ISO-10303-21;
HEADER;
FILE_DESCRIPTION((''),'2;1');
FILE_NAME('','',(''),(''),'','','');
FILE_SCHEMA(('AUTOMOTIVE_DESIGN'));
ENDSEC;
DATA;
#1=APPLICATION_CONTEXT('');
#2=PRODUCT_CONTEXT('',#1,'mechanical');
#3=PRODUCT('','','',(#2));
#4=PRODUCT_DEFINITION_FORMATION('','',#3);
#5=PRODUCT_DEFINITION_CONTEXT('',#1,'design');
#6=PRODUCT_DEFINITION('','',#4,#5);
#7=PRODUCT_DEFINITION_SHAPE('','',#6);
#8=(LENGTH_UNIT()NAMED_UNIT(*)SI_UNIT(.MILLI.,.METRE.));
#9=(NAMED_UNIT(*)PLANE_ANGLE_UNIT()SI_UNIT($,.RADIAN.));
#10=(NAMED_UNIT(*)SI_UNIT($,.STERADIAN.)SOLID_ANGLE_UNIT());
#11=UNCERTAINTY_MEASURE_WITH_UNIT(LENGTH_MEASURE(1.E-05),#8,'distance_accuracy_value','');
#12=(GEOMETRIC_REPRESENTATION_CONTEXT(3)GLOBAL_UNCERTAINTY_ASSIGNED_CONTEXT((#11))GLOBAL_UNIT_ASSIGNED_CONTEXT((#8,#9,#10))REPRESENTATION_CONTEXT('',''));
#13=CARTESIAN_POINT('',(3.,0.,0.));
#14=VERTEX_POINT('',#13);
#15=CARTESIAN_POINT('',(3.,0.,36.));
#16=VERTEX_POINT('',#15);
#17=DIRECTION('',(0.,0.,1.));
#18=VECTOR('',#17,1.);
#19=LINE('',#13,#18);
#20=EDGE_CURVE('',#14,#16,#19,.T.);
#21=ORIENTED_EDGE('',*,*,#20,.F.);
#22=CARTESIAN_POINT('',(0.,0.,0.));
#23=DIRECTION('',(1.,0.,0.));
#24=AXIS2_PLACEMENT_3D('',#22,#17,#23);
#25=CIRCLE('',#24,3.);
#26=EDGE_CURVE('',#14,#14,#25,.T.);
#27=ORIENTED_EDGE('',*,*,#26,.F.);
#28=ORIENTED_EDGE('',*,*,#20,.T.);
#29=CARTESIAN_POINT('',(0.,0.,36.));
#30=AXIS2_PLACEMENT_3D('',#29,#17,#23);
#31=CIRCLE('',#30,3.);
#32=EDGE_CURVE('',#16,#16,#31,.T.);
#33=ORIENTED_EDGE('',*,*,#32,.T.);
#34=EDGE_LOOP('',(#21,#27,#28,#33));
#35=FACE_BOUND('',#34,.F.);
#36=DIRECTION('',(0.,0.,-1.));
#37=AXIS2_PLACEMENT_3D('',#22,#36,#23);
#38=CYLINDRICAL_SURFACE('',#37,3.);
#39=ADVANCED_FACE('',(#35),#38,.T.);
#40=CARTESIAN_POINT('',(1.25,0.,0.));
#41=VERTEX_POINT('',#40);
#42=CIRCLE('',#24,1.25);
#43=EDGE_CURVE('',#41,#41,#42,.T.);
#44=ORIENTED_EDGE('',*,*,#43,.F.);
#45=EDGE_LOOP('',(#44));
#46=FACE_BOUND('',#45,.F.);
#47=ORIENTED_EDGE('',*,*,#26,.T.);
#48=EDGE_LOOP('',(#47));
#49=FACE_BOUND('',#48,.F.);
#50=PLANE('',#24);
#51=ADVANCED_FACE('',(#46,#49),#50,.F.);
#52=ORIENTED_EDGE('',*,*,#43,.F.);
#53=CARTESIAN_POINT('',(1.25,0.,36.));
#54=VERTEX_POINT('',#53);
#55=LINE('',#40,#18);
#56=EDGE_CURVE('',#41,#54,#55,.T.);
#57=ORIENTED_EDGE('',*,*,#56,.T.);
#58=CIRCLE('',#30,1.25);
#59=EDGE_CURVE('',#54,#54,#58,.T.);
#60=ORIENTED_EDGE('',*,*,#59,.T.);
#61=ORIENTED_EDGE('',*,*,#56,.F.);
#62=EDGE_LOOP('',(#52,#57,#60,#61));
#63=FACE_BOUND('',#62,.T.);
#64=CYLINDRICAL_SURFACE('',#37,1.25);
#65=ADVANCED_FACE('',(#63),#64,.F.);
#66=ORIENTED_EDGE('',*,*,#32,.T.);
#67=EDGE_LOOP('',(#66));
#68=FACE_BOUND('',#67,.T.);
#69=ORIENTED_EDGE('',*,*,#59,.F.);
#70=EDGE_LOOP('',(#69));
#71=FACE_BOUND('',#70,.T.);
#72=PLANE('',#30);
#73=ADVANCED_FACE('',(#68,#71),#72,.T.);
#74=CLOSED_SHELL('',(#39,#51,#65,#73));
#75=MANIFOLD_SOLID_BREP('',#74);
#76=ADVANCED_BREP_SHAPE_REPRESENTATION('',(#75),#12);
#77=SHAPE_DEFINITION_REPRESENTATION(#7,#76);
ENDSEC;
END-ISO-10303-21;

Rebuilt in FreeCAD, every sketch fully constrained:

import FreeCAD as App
import Part
import Sketcher
Q = App.Units.Quantity

doc = App.newDocument("Part")
body = doc.addObject("PartDesign::Body", "Body")

# Sketch on XY plane
sketch1 = body.newObject("Sketcher::SketchObject", "Sketch")
sketch1.AttachmentSupport = (doc.getObject("XY_Plane"), [""])
sketch1.MapMode = "FlatFace"
sketch1.addGeometry([
    Part.Circle(App.Vector(0, 0, 0), App.Vector(0, 0, 1), 3),
    Part.Circle(App.Vector(0, 0, 0), App.Vector(0, 0, 1), 1.2),
], False)
sketch1.addConstraint([
    Sketcher.Constraint("Coincident", 0, 3, -1, 1),
    Sketcher.Constraint("Coincident", 1, 3, -1, 1),
    Sketcher.Constraint("Diameter", 0, Q("6 mm")),
    Sketcher.Constraint("Diameter", 1, Q("2.5 mm")),
])
pad1 = body.newObject("PartDesign::Pad", "Pad")
pad1.Profile = sketch1
pad1.Length = 36

doc.recompute()
